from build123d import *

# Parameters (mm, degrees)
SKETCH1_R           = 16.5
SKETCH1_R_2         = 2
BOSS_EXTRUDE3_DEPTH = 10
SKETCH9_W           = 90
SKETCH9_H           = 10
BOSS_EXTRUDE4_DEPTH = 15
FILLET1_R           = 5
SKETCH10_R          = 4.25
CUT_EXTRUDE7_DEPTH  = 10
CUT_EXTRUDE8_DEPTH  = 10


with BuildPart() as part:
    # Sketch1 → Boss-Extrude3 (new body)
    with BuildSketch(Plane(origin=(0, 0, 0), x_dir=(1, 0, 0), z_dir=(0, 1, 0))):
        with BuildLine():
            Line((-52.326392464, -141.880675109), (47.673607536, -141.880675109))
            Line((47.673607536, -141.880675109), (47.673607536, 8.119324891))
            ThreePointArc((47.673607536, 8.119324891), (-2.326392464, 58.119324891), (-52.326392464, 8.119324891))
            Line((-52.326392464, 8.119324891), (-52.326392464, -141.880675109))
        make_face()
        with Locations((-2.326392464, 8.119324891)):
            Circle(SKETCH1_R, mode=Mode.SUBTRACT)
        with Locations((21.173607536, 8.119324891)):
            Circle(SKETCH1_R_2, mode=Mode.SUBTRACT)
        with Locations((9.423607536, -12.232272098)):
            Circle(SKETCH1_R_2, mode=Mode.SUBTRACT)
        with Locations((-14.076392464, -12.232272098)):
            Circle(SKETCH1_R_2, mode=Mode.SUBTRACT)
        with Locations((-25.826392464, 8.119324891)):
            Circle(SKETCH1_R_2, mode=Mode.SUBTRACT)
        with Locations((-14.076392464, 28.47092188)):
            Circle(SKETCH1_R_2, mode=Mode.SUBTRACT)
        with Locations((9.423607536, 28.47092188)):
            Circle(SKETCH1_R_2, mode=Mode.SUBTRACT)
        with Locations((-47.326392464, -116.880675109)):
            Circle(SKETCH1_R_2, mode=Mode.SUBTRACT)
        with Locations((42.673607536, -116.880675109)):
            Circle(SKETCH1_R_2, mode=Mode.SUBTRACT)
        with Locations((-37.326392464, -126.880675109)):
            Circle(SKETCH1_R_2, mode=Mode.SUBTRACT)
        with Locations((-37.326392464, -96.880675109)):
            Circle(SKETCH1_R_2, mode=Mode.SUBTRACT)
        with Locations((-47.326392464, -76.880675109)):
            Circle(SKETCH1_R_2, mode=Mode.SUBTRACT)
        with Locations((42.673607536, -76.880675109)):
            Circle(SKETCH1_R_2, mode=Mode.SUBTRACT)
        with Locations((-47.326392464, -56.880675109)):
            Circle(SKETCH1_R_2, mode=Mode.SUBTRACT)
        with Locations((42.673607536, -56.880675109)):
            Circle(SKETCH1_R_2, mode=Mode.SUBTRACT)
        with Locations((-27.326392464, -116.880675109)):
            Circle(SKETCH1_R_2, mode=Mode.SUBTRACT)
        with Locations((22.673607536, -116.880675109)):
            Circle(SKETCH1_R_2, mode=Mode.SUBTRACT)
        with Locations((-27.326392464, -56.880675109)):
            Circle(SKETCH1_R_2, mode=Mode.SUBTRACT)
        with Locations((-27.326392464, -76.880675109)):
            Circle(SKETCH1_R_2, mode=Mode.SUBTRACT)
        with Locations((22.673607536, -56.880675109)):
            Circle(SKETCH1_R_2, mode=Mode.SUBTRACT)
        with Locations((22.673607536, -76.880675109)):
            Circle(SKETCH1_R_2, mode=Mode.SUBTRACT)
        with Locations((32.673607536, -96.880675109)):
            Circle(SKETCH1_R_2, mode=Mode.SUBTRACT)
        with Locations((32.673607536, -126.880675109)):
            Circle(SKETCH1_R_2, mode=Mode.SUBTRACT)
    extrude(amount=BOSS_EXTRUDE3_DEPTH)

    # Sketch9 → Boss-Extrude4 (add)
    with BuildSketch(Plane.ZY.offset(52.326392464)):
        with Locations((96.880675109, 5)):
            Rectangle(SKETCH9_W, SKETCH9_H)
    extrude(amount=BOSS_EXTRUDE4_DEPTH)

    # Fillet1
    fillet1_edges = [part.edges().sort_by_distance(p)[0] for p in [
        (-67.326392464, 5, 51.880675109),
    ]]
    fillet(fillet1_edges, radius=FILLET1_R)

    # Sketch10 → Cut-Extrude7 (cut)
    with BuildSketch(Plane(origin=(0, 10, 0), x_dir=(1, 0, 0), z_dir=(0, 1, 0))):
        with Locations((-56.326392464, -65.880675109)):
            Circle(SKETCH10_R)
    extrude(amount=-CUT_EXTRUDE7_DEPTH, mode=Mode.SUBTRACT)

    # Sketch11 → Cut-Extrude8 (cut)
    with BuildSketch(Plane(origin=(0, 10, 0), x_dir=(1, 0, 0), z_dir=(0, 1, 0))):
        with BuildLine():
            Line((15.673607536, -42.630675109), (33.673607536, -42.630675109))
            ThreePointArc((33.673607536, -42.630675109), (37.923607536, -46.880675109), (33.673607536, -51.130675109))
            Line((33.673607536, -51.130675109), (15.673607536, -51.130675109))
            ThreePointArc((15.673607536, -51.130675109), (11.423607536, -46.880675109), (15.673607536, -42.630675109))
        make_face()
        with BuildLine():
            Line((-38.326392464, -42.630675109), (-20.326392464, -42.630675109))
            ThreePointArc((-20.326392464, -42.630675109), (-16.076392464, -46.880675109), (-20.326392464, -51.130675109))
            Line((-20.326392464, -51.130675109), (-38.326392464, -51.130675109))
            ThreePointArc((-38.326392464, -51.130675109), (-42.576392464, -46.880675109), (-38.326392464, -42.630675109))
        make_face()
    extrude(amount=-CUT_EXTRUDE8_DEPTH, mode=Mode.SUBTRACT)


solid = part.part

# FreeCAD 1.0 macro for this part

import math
import FreeCAD as App
import Part
import Sketcher

V = App.Vector
Q = App.Units.Quantity


def edges_at(feature, points):
    """Names of the edges that pass closest to the given points."""
    edges = feature.Shape.Edges
    near = lambda p: min(range(len(edges)), key=lambda i: edges[i].distToShape(Part.Vertex(*p))[0])
    return sorted({f"Edge{near(p) + 1}" for p in points})

doc = App.newDocument("Part")
body = doc.addObject("PartDesign::Body", "Body")

# Sketch on XZ plane
sketch1 = body.newObject("Sketcher::SketchObject", "Sketch")
sketch1.AttachmentSupport = (doc.getObject("XZ_Plane"), [""])
sketch1.MapMode = "FlatFace"
sketch1.addGeometry(Part.LineSegment(V(-52.3, 141.9, 0), V(47.7, 141.9, 0)), False)
sketch1.addGeometry(Part.LineSegment(V(47.7, 141.9, 0), V(47.7, -8.1, 0)), False)
sketch1.addGeometry(Part.ArcOfCircle(Part.Circle(V(-2.3, -8.1, 0), V(0, 0, 1), 50), math.radians(180), math.radians(360)), False)
sketch1.addGeometry(Part.LineSegment(V(-52.3, -8.1, 0), V(-52.3, 141.9, 0)), False)
sketch1.addGeometry(Part.Circle(V(-47.3, 116.9, 0), V(0, 0, 1), 2), False)
sketch1.addGeometry(Part.Circle(V(-37.3, 126.9, 0), V(0, 0, 1), 2), False)
sketch1.addGeometry(Part.Circle(V(-27.3, 116.9, 0), V(0, 0, 1), 2), False)
sketch1.addGeometry(Part.Circle(V(-37.3, 96.9, 0), V(0, 0, 1), 2), False)
sketch1.addGeometry(Part.Circle(V(-47.3, 76.9, 0), V(0, 0, 1), 2), False)
sketch1.addGeometry(Part.Circle(V(-27.3, 76.9, 0), V(0, 0, 1), 2), False)
sketch1.addGeometry(Part.Circle(V(-47.3, 56.9, 0), V(0, 0, 1), 2), False)
sketch1.addGeometry(Part.Circle(V(-27.3, 56.9, 0), V(0, 0, 1), 2), False)
sketch1.addGeometry(Part.Circle(V(32.7, 126.9, 0), V(0, 0, 1), 2), False)
sketch1.addGeometry(Part.Circle(V(22.7, 116.9, 0), V(0, 0, 1), 2), False)
sketch1.addGeometry(Part.Circle(V(42.7, 116.9, 0), V(0, 0, 1), 2), False)
sketch1.addGeometry(Part.Circle(V(32.7, 96.9, 0), V(0, 0, 1), 2), False)
sketch1.addGeometry(Part.Circle(V(22.7, 76.9, 0), V(0, 0, 1), 2), False)
sketch1.addGeometry(Part.Circle(V(42.7, 76.9, 0), V(0, 0, 1), 2), False)
sketch1.addGeometry(Part.Circle(V(22.7, 56.9, 0), V(0, 0, 1), 2), False)
sketch1.addGeometry(Part.Circle(V(42.7, 56.9, 0), V(0, 0, 1), 2), False)
sketch1.addGeometry(Part.Circle(V(-14.1, 12.2, 0), V(0, 0, 1), 2), False)
sketch1.addGeometry(Part.Circle(V(-25.8, -8.1, 0), V(0, 0, 1), 2), False)
sketch1.addGeometry(Part.Circle(V(-14.1, -28.5, 0), V(0, 0, 1), 2), False)
sketch1.addGeometry(Part.Circle(V(9.4, 12.2, 0), V(0, 0, 1), 2), False)
sketch1.addGeometry(Part.Circle(V(-2.3, -8.1, 0), V(0, 0, 1), 16.5), False)
sketch1.addGeometry(Part.Circle(V(9.4, -28.5, 0), V(0, 0, 1), 2), False)
sketch1.addGeometry(Part.Circle(V(21.2, -8.1, 0), V(0, 0, 1), 2), False)
sketch1.addConstraint(Sketcher.Constraint("Coincident", 0, 2, 1, 1))
sketch1.addConstraint(Sketcher.Constraint("Tangent", 1, 2, 2, 2))
sketch1.addConstraint(Sketcher.Constraint("Tangent", 2, 1, 3, 1))
sketch1.addConstraint(Sketcher.Constraint("Coincident", 3, 2, 0, 1))
sketch1.addConstraint(Sketcher.Constraint("Horizontal", 0))
sketch1.addConstraint(Sketcher.Constraint("Vertical", 1))
sketch1.addConstraint(Sketcher.Constraint("Vertical", 3))
sketch1.addConstraint(Sketcher.Constraint("Coincident", 24, 3, 2, 3))
sketch1.addConstraint(Sketcher.Constraint("Equal", 4, 5))
sketch1.addConstraint(Sketcher.Constraint("Equal", 5, 6))
sketch1.addConstraint(Sketcher.Constraint("Equal", 6, 7))
sketch1.addConstraint(Sketcher.Constraint("Equal", 7, 8))
sketch1.addConstraint(Sketcher.Constraint("Equal", 8, 9))
sketch1.addConstraint(Sketcher.Constraint("Equal", 9, 10))
sketch1.addConstraint(Sketcher.Constraint("Equal", 10, 11))
sketch1.addConstraint(Sketcher.Constraint("Equal", 11, 12))
sketch1.addConstraint(Sketcher.Constraint("Equal", 12, 13))
sketch1.addConstraint(Sketcher.Constraint("Equal", 13, 14))
sketch1.addConstraint(Sketcher.Constraint("Equal", 14, 15))
sketch1.addConstraint(Sketcher.Constraint("Equal", 15, 16))
sketch1.addConstraint(Sketcher.Constraint("Equal", 16, 17))
sketch1.addConstraint(Sketcher.Constraint("Equal", 17, 18))
sketch1.addConstraint(Sketcher.Constraint("Equal", 18, 19))
sketch1.addConstraint(Sketcher.Constraint("Equal", 19, 20))
sketch1.addConstraint(Sketcher.Constraint("Equal", 20, 21))
sketch1.addConstraint(Sketcher.Constraint("Equal", 21, 22))
sketch1.addConstraint(Sketcher.Constraint("Equal", 22, 23))
sketch1.addConstraint(Sketcher.Constraint("Equal", 23, 25))
sketch1.addConstraint(Sketcher.Constraint("Equal", 25, 26))
sketch1.addConstraint(Sketcher.Constraint("Horizontal", 4, 3, 6, 3))
sketch1.addConstraint(Sketcher.Constraint("Horizontal", 8, 3, 9, 3))
sketch1.addConstraint(Sketcher.Constraint("Horizontal", 10, 3, 11, 3))
sketch1.addConstraint(Sketcher.Constraint("Horizontal", 5, 3, 12, 3))
sketch1.addConstraint(Sketcher.Constraint("Horizontal", 6, 3, 13, 3))
sketch1.addConstraint(Sketcher.Constraint("Horizontal", 13, 3, 14, 3))
sketch1.addConstraint(Sketcher.Constraint("Horizontal", 7, 3, 15, 3))
sketch1.addConstraint(Sketcher.Constraint("Horizontal", 9, 3, 16, 3))
sketch1.addConstraint(Sketcher.Constraint("Horizontal", 16, 3, 17, 3))
sketch1.addConstraint(Sketcher.Constraint("Horizontal", 11, 3, 18, 3))
sketch1.addConstraint(Sketcher.Constraint("Horizontal", 18, 3, 19, 3))
sketch1.addConstraint(Sketcher.Constraint("Horizontal", 2, 3, 21, 3))
sketch1.addConstraint(Sketcher.Constraint("Horizontal", 20, 3, 23, 3))
sketch1.addConstraint(Sketcher.Constraint("Horizontal", 22, 3, 25, 3))
sketch1.addConstraint(Sketcher.Constraint("Horizontal", 24, 3, 26, 3))
sketch1.addConstraint(Sketcher.Constraint("Vertical", 5, 3, 7, 3))
sketch1.addConstraint(Sketcher.Constraint("Vertical", 4, 3, 8, 3))
sketch1.addConstraint(Sketcher.Constraint("Vertical", 6, 3, 9, 3))
sketch1.addConstraint(Sketcher.Constraint("Vertical", 8, 3, 10, 3))
sketch1.addConstraint(Sketcher.Constraint("Vertical", 9, 3, 11, 3))
sketch1.addConstraint(Sketcher.Constraint("Vertical", 12, 3, 15, 3))
sketch1.addConstraint(Sketcher.Constraint("Vertical", 13, 3, 16, 3))
sketch1.addConstraint(Sketcher.Constraint("Vertical", 14, 3, 17, 3))
sketch1.addConstraint(Sketcher.Constraint("Vertical", 16, 3, 18, 3))
sketch1.addConstraint(Sketcher.Constraint("Vertical", 17, 3, 19, 3))
sketch1.addConstraint(Sketcher.Constraint("Vertical", 20, 3, 22, 3))
sketch1.addConstraint(Sketcher.Constraint("Vertical", 23, 3, 25, 3))
sketch1.addConstraint(Sketcher.Constraint("Diameter", 4, Q("4 mm")))
sketch1.addConstraint(Sketcher.Constraint("Diameter", 24, Q("33 mm")))
sketch1.addConstraint(Sketcher.Constraint("Radius", 2, Q("50 mm")))
sketch1.addConstraint(Sketcher.Constraint("DistanceY", 1, 2, 1, 1, Q("150 mm")))
sketch1.addConstraint(Sketcher.Constraint("DistanceX", 4, 3, 2, 3, Q("45 mm")))
sketch1.addConstraint(Sketcher.Constraint("DistanceY", 2, 3, 4, 3, Q("125 mm")))
sketch1.addConstraint(Sketcher.Constraint("DistanceX", 4, 3, 5, 3, Q("10 mm")))
sketch1.addConstraint(Sketcher.Constraint("DistanceY", 4, 3, 5, 3, Q("10 mm")))
sketch1.addConstraint(Sketcher.Constraint("DistanceX", 5, 3, 6, 3, Q("10 mm")))
sketch1.addConstraint(Sketcher.Constraint("DistanceY", 7, 3, 4, 3, Q("20 mm")))
sketch1.addConstraint(Sketcher.Constraint("DistanceY", 8, 3, 7, 3, Q("20 mm")))
sketch1.addConstraint(Sketcher.Constraint("DistanceY", 10, 3, 8, 3, Q("20 mm")))
sketch1.addConstraint(Sketcher.Constraint("DistanceX", 6, 3, 12, 3, Q("60 mm")))
sketch1.addConstraint(Sketcher.Constraint("DistanceX", 13, 3, 12, 3, Q("10 mm")))
sketch1.addConstraint(Sketcher.Constraint("DistanceX", 12, 3, 14, 3, Q("10 mm")))
sketch1.addConstraint(Sketcher.Constraint("DistanceX", 21, 3, 2, 3, Q("23.5 mm")))
sketch1.addConstraint(Sketcher.Constraint("DistanceX", 20, 3, 23, 3, Q("23.5 mm")))
sketch1.addConstraint(Sketcher.Constraint("DistanceX", 2, 3, 26, 3, Q("23.5 mm")))
sketch1.addConstraint(Sketcher.Constraint("DistanceX", 20, 3, 2, 3, Q("11.75 mm")))
sketch1.addConstraint(Sketcher.Constraint("DistanceY", 22, 3, -1, 1, Q("28.470922 mm")))
sketch1.addConstraint(Sketcher.Constraint("DistanceX", 2, 3, -1, 1, Q("2.326392 mm")))
sketch1.addConstraint(Sketcher.Constraint("DistanceY", 2, 3, -1, 1, Q("8.119325 mm")))
sketch1.addConstraint(Sketcher.Constraint("DistanceY", -1, 1, 20, 3, Q("12.232272 mm")))
pad1 = body.newObject("PartDesign::Pad", "Pad")
pad1.Profile = sketch1
pad1.Length = 10
pad1.Reversed = True

# Sketch on YZ plane
sketch2 = body.newObject("Sketcher::SketchObject", "Sketch001")
sketch2.AttachmentSupport = (doc.getObject("YZ_Plane"), [""])
sketch2.MapMode = "FlatFace"
sketch2.AttachmentOffset = App.Placement(V(0, 0, -52.326392), App.Rotation())
sketch2.addGeometry(Part.LineSegment(V(10, 52, 0), V(0, 52, 0)), False)
sketch2.addGeometry(Part.LineSegment(V(0, 52, 0), V(0, 142, 0)), False)
sketch2.addGeometry(Part.LineSegment(V(0, 142, 0), V(10, 142, 0)), False)
sketch2.addGeometry(Part.LineSegment(V(10, 142, 0), V(10, 52, 0)), False)
sketch2.addConstraint(Sketcher.Constraint("Coincident", 0, 2, 1, 1))
sketch2.addConstraint(Sketcher.Constraint("Coincident", 1, 2, 2, 1))
sketch2.addConstraint(Sketcher.Constraint("Coincident", 2, 2, 3, 1))
sketch2.addConstraint(Sketcher.Constraint("Coincident", 3, 2, 0, 1))
sketch2.addConstraint(Sketcher.Constraint("Horizontal", 0))
sketch2.addConstraint(Sketcher.Constraint("Vertical", 1))
sketch2.addConstraint(Sketcher.Constraint("Horizontal", 2))
sketch2.addConstraint(Sketcher.Constraint("Vertical", 3))
sketch2.addConstraint(Sketcher.Constraint("PointOnObject", 0, 2, -2))
sketch2.addConstraint(Sketcher.Constraint("DistanceX", 0, 2, 0, 1, Q("10 mm")))
sketch2.addConstraint(Sketcher.Constraint("DistanceY", 1, 1, 1, 2, Q("90 mm")))
sketch2.addConstraint(Sketcher.Constraint("DistanceY", -1, 1, 0, 2, Q("51.880675 mm")))
pad2 = body.newObject("PartDesign::Pad", "Pad001")
pad2.Profile = sketch2
pad2.Length = 15
pad2.Reversed = True
doc.recompute()

fillet = body.newObject("PartDesign::Fillet", "Fillet")
fillet.Base = (pad2, edges_at(pad2, [(-67.326, 5, 51.881)]))
fillet.Radius = 5

# Sketch on XZ plane
sketch3 = body.newObject("Sketcher::SketchObject", "Sketch002")
sketch3.AttachmentSupport = (doc.getObject("XZ_Plane"), [""])
sketch3.MapMode = "FlatFace"
sketch3.AttachmentOffset = App.Placement(V(0, 0, -10), App.Rotation())
sketch3.addGeometry(Part.Circle(V(-56.3, 65.9, 0), V(0, 0, 1), 4.2), False)
sketch3.addConstraint(Sketcher.Constraint("Diameter", 0, Q("8.5 mm")))
sketch3.addConstraint(Sketcher.Constraint("DistanceX", 0, 3, -1, 1, Q("56.326392 mm")))
sketch3.addConstraint(Sketcher.Constraint("DistanceY", -1, 1, 0, 3, Q("65.880675 mm")))
pocket1 = body.newObject("PartDesign::Pocket", "Pocket")
pocket1.Profile = sketch3
pocket1.Length = 10
pocket1.Reversed = True

# Sketch on XZ plane
sketch4 = body.newObject("Sketcher::SketchObject", "Sketch003")
sketch4.AttachmentSupport = (doc.getObject("XZ_Plane"), [""])
sketch4.MapMode = "FlatFace"
sketch4.AttachmentOffset = App.Placement(V(0, 0, -10), App.Rotation())
sketch4.addGeometry(Part.LineSegment(V(33.7, 42.6, 0), V(15.7, 42.6, 0)), False)
sketch4.addGeometry(Part.ArcOfCircle(Part.Circle(V(15.7, 46.9, 0), V(0, 0, 1), 4.2), math.radians(90), math.radians(270)), False)
sketch4.addGeometry(Part.LineSegment(V(15.7, 51.1, 0), V(33.7, 51.1, 0)), False)
sketch4.addGeometry(Part.ArcOfCircle(Part.Circle(V(33.7, 46.9, 0), V(0, 0, 1), 4.2), math.radians(-90), math.radians(90)), False)
sketch4.addGeometry(Part.LineSegment(V(-20.3, 42.6, 0), V(-38.3, 42.6, 0)), False)
sketch4.addGeometry(Part.ArcOfCircle(Part.Circle(V(-38.3, 46.9, 0), V(0, 0, 1), 4.2), math.radians(90), math.radians(270)), False)
sketch4.addGeometry(Part.LineSegment(V(-38.3, 51.1, 0), V(-20.3, 51.1, 0)), False)
sketch4.addGeometry(Part.ArcOfCircle(Part.Circle(V(-20.3, 46.9, 0), V(0, 0, 1), 4.2), math.radians(-90), math.radians(90)), False)
sketch4.addConstraint(Sketcher.Constraint("Tangent", 0, 2, 1, 2))
sketch4.addConstraint(Sketcher.Constraint("Tangent", 1, 1, 2, 1))
sketch4.addConstraint(Sketcher.Constraint("Tangent", 2, 2, 3, 2))
sketch4.addConstraint(Sketcher.Constraint("Tangent", 3, 1, 0, 1))
sketch4.addConstraint(Sketcher.Constraint("Tangent", 4, 2, 5, 2))
sketch4.addConstraint(Sketcher.Constraint("Tangent", 5, 1, 6, 1))
sketch4.addConstraint(Sketcher.Constraint("Tangent", 6, 2, 7, 2))
sketch4.addConstraint(Sketcher.Constraint("Tangent", 7, 1, 4, 1))
sketch4.addConstraint(Sketcher.Constraint("Horizontal", 0))
sketch4.addConstraint(Sketcher.Constraint("Horizontal", 2))
sketch4.addConstraint(Sketcher.Constraint("Horizontal", 4))
sketch4.addConstraint(Sketcher.Constraint("Horizontal", 6))
sketch4.addConstraint(Sketcher.Constraint("Equal", 3, 5))
sketch4.addConstraint(Sketcher.Constraint("Horizontal", 3, 3, 5, 3))
sketch4.addConstraint(Sketcher.Constraint("Equal", 2, 4))
sketch4.addConstraint(Sketcher.Constraint("DistanceX", 0, 2, 0, 1, Q("18 mm")))
sketch4.addConstraint(Sketcher.Constraint("Radius", 1, Q("4.25 mm")))
sketch4.addConstraint(Sketcher.Constraint("DistanceX", 5, 3, 1, 3, Q("54 mm")))
sketch4.addConstraint(Sketcher.Constraint("DistanceX", -1, 1, 1, 3, Q("15.673608 mm")))
sketch4.addConstraint(Sketcher.Constraint("DistanceY", -1, 1, 1, 3, Q("46.880675 mm")))
pocket2 = body.newObject("PartDesign::Pocket", "Pocket001")
pocket2.Profile = sketch4
pocket2.Length = 10
pocket2.Reversed = True

doc.recompute()
